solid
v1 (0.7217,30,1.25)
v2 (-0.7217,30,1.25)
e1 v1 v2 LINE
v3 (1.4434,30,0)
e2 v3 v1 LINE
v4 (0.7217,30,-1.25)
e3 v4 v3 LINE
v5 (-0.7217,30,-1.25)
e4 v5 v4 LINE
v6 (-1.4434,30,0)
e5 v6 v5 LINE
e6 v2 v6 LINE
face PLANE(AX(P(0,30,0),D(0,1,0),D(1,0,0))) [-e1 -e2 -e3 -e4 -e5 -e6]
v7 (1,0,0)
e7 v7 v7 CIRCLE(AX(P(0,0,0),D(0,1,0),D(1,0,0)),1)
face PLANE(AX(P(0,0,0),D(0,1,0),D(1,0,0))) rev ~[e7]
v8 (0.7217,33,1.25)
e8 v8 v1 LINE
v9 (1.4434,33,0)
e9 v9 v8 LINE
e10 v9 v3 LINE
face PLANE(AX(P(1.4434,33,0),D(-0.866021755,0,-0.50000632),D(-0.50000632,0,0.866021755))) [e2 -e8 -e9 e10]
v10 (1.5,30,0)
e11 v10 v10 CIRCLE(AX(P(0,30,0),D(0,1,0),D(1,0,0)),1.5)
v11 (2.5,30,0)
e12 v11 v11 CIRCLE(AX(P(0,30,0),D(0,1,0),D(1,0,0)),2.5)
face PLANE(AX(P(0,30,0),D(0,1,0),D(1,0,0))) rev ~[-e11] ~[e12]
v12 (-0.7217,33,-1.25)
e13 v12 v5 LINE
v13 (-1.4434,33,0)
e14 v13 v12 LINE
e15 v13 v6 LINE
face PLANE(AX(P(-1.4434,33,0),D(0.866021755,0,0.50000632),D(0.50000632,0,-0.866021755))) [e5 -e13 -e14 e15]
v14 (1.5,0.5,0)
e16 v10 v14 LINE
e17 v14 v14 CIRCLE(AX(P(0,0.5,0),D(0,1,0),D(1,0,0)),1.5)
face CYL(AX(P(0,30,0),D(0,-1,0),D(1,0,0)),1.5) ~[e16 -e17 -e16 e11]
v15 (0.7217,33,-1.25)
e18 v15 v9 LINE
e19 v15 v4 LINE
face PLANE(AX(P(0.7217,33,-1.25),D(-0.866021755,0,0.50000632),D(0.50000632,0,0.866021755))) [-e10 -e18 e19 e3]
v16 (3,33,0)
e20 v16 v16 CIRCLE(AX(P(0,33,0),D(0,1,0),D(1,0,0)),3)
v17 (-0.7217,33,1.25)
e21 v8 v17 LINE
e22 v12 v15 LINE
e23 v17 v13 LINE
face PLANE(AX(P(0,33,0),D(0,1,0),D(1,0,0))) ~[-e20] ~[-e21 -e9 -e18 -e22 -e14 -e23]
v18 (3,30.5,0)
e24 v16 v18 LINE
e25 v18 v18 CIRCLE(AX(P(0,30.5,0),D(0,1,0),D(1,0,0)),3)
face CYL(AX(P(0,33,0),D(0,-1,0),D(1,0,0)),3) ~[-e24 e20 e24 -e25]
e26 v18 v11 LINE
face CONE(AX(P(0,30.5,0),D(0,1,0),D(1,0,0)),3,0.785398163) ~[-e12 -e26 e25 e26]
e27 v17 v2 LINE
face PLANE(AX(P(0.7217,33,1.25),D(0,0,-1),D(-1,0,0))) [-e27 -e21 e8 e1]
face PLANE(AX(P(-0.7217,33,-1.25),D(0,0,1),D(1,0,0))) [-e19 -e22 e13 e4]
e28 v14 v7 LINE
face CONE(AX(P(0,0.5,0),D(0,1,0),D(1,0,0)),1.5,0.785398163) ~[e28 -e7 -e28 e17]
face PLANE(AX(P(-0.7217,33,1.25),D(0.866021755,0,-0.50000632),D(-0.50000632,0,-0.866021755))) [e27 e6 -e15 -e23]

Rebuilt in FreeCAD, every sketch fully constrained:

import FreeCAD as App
import Part
import Sketcher

V = App.Vector
Q = App.Units.Quantity


def edges_at(feature, points):
    """Names of the edges that pass closest to the given points."""
    edges = feature.Shape.Edges
    near = lambda p: min(range(len(edges)), key=lambda i: edges[i].distToShape(Part.Vertex(*p))[0])
    return sorted({f"Edge{near(p) + 1}" for p in points})

doc = App.newDocument("Part")
body = doc.addObject("PartDesign::Body", "Body")

sketch1 = body.newObject("Sketcher::SketchObject", "Sketch")
sketch1.AttachmentSupport = (doc.getObject("XY_Plane"), [""])
sketch1.MapMode = "FlatFace"
sketch1.addGeometry(Part.LineSegment(V(0, 33, 0), V(0, 0, 0)), False)
sketch1.addGeometry(Part.LineSegment(V(0, 0, 0), V(1.5, 0, 0)), False)
sketch1.addGeometry(Part.LineSegment(V(1.5, 0, 0), V(1.5, 30, 0)), False)
sketch1.addGeometry(Part.LineSegment(V(1.5, 30, 0), V(3, 30, 0)), False)
sketch1.addGeometry(Part.LineSegment(V(3, 30, 0), V(3, 33, 0)), False)
sketch1.addGeometry(Part.LineSegment(V(3, 33, 0), V(0, 33, 0)), False)
sketch1.addConstraint(Sketcher.Constraint("Coincident", 0, 2, 1, 1))
sketch1.addConstraint(Sketcher.Constraint("Coincident", 1, 2, 2, 1))
sketch1.addConstraint(Sketcher.Constraint("Coincident", 2, 2, 3, 1))
sketch1.addConstraint(Sketcher.Constraint("Coincident", 3, 2, 4, 1))
sketch1.addConstraint(Sketcher.Constraint("Coincident", 4, 2, 5, 1))
sketch1.addConstraint(Sketcher.Constraint("Coincident", 5, 2, 0, 1))
sketch1.addConstraint(Sketcher.Constraint("Vertical", 0))
sketch1.addConstraint(Sketcher.Constraint("Horizontal", 1))
sketch1.addConstraint(Sketcher.Constraint("Vertical", 2))
sketch1.addConstraint(Sketcher.Constraint("Horizontal", 3))
sketch1.addConstraint(Sketcher.Constraint("Vertical", 4))
sketch1.addConstraint(Sketcher.Constraint("Horizontal", 5))
sketch1.addConstraint(Sketcher.Constraint("Coincident", 0, 2, -1, 1))
sketch1.addConstraint(Sketcher.Constraint("Equal", 1, 3))
sketch1.addConstraint(Sketcher.Constraint("Equal", 5, 4))
sketch1.addConstraint(Sketcher.Constraint("DistanceX", 5, 2, 5, 1, 3.0))
sketch1.addConstraint(Sketcher.Constraint("DistanceY", 2, 1, 2, 2, 30.0))
revolution = body.newObject("PartDesign::Revolution", "Revolution")
revolution.Profile = sketch1
revolution.ReferenceAxis = (sketch1, ["V_Axis"])
revolution.Angle = 360

sketch2 = body.newObject("Sketcher::SketchObject", "Sketch001")
sketch2.AttachmentSupport = (doc.getObject("XZ_Plane"), [""])
sketch2.MapMode = "FlatFace"
sketch2.AttachmentOffset = App.Placement(V(0, 0, -33), App.Rotation())
sketch2.addGeometry(Part.LineSegment(V(1.4, 0, 0), V(0.7, -1.2, 0)), False)
sketch2.addGeometry(Part.LineSegment(V(0.7, -1.2, 0), V(-0.7, -1.2, 0)), False)
sketch2.addGeometry(Part.LineSegment(V(-0.7, -1.2, 0), V(-1.4, 0, 0)), False)
sketch2.addGeometry(Part.LineSegment(V(-1.4, 0, 0), V(-0.7, 1.2, 0)), False)
sketch2.addGeometry(Part.LineSegment(V(-0.7, 1.2, 0), V(0.7, 1.2, 0)), False)
sketch2.addGeometry(Part.LineSegment(V(0.7, 1.2, 0), V(1.4, 0, 0)), False)
sketch2.addConstraint(Sketcher.Constraint("Coincident", 0, 2, 1, 1))
sketch2.addConstraint(Sketcher.Constraint("Coincident", 1, 2, 2, 1))
sketch2.addConstraint(Sketcher.Constraint("Coincident", 2, 2, 3, 1))
sketch2.addConstraint(Sketcher.Constraint("Coincident", 3, 2, 4, 1))
sketch2.addConstraint(Sketcher.Constraint("Coincident", 4, 2, 5, 1))
sketch2.addConstraint(Sketcher.Constraint("Coincident", 5, 2, 0, 1))
sketch2.addConstraint(Sketcher.Constraint("Horizontal", 1))
sketch2.addConstraint(Sketcher.Constraint("Horizontal", 4))
sketch2.addConstraint(Sketcher.Constraint("Symmetric", 0, 2, 3, 2, -1, 1))
sketch2.addConstraint(Sketcher.Constraint("Symmetric", 2, 2, 5, 2, -1, 1))
sketch2.addConstraint(Sketcher.Constraint("PointOnObject", 2, 2, -1))
sketch2.addConstraint(Sketcher.Constraint("Parallel", 2, 5))
sketch2.addConstraint(Sketcher.Constraint("Vertical", 1, 2, 3, 2))
sketch2.addConstraint(Sketcher.Constraint("DistanceY", 1, 2, 3, 2, 2.5))
sketch2.addConstraint(Sketcher.Constraint("Angle", 0, Q("-120.0004 deg")))
sketch2.addConstraint(Sketcher.Constraint("DistanceX", 1, 2, 1, 1, 1.4434))
pocket1 = body.newObject("PartDesign::Pocket", "Pocket")
pocket1.Profile = sketch2
pocket1.Length = 3
pocket1.Reversed = True
doc.recompute()

chamfer = body.newObject("PartDesign::Chamfer", "Chamfer")
chamfer.Base = (pocket1, edges_at(pocket1, [(-3, 30, 0), (-1.5, 0, 0)]))
chamfer.Size = 0.5

doc.recompute()
